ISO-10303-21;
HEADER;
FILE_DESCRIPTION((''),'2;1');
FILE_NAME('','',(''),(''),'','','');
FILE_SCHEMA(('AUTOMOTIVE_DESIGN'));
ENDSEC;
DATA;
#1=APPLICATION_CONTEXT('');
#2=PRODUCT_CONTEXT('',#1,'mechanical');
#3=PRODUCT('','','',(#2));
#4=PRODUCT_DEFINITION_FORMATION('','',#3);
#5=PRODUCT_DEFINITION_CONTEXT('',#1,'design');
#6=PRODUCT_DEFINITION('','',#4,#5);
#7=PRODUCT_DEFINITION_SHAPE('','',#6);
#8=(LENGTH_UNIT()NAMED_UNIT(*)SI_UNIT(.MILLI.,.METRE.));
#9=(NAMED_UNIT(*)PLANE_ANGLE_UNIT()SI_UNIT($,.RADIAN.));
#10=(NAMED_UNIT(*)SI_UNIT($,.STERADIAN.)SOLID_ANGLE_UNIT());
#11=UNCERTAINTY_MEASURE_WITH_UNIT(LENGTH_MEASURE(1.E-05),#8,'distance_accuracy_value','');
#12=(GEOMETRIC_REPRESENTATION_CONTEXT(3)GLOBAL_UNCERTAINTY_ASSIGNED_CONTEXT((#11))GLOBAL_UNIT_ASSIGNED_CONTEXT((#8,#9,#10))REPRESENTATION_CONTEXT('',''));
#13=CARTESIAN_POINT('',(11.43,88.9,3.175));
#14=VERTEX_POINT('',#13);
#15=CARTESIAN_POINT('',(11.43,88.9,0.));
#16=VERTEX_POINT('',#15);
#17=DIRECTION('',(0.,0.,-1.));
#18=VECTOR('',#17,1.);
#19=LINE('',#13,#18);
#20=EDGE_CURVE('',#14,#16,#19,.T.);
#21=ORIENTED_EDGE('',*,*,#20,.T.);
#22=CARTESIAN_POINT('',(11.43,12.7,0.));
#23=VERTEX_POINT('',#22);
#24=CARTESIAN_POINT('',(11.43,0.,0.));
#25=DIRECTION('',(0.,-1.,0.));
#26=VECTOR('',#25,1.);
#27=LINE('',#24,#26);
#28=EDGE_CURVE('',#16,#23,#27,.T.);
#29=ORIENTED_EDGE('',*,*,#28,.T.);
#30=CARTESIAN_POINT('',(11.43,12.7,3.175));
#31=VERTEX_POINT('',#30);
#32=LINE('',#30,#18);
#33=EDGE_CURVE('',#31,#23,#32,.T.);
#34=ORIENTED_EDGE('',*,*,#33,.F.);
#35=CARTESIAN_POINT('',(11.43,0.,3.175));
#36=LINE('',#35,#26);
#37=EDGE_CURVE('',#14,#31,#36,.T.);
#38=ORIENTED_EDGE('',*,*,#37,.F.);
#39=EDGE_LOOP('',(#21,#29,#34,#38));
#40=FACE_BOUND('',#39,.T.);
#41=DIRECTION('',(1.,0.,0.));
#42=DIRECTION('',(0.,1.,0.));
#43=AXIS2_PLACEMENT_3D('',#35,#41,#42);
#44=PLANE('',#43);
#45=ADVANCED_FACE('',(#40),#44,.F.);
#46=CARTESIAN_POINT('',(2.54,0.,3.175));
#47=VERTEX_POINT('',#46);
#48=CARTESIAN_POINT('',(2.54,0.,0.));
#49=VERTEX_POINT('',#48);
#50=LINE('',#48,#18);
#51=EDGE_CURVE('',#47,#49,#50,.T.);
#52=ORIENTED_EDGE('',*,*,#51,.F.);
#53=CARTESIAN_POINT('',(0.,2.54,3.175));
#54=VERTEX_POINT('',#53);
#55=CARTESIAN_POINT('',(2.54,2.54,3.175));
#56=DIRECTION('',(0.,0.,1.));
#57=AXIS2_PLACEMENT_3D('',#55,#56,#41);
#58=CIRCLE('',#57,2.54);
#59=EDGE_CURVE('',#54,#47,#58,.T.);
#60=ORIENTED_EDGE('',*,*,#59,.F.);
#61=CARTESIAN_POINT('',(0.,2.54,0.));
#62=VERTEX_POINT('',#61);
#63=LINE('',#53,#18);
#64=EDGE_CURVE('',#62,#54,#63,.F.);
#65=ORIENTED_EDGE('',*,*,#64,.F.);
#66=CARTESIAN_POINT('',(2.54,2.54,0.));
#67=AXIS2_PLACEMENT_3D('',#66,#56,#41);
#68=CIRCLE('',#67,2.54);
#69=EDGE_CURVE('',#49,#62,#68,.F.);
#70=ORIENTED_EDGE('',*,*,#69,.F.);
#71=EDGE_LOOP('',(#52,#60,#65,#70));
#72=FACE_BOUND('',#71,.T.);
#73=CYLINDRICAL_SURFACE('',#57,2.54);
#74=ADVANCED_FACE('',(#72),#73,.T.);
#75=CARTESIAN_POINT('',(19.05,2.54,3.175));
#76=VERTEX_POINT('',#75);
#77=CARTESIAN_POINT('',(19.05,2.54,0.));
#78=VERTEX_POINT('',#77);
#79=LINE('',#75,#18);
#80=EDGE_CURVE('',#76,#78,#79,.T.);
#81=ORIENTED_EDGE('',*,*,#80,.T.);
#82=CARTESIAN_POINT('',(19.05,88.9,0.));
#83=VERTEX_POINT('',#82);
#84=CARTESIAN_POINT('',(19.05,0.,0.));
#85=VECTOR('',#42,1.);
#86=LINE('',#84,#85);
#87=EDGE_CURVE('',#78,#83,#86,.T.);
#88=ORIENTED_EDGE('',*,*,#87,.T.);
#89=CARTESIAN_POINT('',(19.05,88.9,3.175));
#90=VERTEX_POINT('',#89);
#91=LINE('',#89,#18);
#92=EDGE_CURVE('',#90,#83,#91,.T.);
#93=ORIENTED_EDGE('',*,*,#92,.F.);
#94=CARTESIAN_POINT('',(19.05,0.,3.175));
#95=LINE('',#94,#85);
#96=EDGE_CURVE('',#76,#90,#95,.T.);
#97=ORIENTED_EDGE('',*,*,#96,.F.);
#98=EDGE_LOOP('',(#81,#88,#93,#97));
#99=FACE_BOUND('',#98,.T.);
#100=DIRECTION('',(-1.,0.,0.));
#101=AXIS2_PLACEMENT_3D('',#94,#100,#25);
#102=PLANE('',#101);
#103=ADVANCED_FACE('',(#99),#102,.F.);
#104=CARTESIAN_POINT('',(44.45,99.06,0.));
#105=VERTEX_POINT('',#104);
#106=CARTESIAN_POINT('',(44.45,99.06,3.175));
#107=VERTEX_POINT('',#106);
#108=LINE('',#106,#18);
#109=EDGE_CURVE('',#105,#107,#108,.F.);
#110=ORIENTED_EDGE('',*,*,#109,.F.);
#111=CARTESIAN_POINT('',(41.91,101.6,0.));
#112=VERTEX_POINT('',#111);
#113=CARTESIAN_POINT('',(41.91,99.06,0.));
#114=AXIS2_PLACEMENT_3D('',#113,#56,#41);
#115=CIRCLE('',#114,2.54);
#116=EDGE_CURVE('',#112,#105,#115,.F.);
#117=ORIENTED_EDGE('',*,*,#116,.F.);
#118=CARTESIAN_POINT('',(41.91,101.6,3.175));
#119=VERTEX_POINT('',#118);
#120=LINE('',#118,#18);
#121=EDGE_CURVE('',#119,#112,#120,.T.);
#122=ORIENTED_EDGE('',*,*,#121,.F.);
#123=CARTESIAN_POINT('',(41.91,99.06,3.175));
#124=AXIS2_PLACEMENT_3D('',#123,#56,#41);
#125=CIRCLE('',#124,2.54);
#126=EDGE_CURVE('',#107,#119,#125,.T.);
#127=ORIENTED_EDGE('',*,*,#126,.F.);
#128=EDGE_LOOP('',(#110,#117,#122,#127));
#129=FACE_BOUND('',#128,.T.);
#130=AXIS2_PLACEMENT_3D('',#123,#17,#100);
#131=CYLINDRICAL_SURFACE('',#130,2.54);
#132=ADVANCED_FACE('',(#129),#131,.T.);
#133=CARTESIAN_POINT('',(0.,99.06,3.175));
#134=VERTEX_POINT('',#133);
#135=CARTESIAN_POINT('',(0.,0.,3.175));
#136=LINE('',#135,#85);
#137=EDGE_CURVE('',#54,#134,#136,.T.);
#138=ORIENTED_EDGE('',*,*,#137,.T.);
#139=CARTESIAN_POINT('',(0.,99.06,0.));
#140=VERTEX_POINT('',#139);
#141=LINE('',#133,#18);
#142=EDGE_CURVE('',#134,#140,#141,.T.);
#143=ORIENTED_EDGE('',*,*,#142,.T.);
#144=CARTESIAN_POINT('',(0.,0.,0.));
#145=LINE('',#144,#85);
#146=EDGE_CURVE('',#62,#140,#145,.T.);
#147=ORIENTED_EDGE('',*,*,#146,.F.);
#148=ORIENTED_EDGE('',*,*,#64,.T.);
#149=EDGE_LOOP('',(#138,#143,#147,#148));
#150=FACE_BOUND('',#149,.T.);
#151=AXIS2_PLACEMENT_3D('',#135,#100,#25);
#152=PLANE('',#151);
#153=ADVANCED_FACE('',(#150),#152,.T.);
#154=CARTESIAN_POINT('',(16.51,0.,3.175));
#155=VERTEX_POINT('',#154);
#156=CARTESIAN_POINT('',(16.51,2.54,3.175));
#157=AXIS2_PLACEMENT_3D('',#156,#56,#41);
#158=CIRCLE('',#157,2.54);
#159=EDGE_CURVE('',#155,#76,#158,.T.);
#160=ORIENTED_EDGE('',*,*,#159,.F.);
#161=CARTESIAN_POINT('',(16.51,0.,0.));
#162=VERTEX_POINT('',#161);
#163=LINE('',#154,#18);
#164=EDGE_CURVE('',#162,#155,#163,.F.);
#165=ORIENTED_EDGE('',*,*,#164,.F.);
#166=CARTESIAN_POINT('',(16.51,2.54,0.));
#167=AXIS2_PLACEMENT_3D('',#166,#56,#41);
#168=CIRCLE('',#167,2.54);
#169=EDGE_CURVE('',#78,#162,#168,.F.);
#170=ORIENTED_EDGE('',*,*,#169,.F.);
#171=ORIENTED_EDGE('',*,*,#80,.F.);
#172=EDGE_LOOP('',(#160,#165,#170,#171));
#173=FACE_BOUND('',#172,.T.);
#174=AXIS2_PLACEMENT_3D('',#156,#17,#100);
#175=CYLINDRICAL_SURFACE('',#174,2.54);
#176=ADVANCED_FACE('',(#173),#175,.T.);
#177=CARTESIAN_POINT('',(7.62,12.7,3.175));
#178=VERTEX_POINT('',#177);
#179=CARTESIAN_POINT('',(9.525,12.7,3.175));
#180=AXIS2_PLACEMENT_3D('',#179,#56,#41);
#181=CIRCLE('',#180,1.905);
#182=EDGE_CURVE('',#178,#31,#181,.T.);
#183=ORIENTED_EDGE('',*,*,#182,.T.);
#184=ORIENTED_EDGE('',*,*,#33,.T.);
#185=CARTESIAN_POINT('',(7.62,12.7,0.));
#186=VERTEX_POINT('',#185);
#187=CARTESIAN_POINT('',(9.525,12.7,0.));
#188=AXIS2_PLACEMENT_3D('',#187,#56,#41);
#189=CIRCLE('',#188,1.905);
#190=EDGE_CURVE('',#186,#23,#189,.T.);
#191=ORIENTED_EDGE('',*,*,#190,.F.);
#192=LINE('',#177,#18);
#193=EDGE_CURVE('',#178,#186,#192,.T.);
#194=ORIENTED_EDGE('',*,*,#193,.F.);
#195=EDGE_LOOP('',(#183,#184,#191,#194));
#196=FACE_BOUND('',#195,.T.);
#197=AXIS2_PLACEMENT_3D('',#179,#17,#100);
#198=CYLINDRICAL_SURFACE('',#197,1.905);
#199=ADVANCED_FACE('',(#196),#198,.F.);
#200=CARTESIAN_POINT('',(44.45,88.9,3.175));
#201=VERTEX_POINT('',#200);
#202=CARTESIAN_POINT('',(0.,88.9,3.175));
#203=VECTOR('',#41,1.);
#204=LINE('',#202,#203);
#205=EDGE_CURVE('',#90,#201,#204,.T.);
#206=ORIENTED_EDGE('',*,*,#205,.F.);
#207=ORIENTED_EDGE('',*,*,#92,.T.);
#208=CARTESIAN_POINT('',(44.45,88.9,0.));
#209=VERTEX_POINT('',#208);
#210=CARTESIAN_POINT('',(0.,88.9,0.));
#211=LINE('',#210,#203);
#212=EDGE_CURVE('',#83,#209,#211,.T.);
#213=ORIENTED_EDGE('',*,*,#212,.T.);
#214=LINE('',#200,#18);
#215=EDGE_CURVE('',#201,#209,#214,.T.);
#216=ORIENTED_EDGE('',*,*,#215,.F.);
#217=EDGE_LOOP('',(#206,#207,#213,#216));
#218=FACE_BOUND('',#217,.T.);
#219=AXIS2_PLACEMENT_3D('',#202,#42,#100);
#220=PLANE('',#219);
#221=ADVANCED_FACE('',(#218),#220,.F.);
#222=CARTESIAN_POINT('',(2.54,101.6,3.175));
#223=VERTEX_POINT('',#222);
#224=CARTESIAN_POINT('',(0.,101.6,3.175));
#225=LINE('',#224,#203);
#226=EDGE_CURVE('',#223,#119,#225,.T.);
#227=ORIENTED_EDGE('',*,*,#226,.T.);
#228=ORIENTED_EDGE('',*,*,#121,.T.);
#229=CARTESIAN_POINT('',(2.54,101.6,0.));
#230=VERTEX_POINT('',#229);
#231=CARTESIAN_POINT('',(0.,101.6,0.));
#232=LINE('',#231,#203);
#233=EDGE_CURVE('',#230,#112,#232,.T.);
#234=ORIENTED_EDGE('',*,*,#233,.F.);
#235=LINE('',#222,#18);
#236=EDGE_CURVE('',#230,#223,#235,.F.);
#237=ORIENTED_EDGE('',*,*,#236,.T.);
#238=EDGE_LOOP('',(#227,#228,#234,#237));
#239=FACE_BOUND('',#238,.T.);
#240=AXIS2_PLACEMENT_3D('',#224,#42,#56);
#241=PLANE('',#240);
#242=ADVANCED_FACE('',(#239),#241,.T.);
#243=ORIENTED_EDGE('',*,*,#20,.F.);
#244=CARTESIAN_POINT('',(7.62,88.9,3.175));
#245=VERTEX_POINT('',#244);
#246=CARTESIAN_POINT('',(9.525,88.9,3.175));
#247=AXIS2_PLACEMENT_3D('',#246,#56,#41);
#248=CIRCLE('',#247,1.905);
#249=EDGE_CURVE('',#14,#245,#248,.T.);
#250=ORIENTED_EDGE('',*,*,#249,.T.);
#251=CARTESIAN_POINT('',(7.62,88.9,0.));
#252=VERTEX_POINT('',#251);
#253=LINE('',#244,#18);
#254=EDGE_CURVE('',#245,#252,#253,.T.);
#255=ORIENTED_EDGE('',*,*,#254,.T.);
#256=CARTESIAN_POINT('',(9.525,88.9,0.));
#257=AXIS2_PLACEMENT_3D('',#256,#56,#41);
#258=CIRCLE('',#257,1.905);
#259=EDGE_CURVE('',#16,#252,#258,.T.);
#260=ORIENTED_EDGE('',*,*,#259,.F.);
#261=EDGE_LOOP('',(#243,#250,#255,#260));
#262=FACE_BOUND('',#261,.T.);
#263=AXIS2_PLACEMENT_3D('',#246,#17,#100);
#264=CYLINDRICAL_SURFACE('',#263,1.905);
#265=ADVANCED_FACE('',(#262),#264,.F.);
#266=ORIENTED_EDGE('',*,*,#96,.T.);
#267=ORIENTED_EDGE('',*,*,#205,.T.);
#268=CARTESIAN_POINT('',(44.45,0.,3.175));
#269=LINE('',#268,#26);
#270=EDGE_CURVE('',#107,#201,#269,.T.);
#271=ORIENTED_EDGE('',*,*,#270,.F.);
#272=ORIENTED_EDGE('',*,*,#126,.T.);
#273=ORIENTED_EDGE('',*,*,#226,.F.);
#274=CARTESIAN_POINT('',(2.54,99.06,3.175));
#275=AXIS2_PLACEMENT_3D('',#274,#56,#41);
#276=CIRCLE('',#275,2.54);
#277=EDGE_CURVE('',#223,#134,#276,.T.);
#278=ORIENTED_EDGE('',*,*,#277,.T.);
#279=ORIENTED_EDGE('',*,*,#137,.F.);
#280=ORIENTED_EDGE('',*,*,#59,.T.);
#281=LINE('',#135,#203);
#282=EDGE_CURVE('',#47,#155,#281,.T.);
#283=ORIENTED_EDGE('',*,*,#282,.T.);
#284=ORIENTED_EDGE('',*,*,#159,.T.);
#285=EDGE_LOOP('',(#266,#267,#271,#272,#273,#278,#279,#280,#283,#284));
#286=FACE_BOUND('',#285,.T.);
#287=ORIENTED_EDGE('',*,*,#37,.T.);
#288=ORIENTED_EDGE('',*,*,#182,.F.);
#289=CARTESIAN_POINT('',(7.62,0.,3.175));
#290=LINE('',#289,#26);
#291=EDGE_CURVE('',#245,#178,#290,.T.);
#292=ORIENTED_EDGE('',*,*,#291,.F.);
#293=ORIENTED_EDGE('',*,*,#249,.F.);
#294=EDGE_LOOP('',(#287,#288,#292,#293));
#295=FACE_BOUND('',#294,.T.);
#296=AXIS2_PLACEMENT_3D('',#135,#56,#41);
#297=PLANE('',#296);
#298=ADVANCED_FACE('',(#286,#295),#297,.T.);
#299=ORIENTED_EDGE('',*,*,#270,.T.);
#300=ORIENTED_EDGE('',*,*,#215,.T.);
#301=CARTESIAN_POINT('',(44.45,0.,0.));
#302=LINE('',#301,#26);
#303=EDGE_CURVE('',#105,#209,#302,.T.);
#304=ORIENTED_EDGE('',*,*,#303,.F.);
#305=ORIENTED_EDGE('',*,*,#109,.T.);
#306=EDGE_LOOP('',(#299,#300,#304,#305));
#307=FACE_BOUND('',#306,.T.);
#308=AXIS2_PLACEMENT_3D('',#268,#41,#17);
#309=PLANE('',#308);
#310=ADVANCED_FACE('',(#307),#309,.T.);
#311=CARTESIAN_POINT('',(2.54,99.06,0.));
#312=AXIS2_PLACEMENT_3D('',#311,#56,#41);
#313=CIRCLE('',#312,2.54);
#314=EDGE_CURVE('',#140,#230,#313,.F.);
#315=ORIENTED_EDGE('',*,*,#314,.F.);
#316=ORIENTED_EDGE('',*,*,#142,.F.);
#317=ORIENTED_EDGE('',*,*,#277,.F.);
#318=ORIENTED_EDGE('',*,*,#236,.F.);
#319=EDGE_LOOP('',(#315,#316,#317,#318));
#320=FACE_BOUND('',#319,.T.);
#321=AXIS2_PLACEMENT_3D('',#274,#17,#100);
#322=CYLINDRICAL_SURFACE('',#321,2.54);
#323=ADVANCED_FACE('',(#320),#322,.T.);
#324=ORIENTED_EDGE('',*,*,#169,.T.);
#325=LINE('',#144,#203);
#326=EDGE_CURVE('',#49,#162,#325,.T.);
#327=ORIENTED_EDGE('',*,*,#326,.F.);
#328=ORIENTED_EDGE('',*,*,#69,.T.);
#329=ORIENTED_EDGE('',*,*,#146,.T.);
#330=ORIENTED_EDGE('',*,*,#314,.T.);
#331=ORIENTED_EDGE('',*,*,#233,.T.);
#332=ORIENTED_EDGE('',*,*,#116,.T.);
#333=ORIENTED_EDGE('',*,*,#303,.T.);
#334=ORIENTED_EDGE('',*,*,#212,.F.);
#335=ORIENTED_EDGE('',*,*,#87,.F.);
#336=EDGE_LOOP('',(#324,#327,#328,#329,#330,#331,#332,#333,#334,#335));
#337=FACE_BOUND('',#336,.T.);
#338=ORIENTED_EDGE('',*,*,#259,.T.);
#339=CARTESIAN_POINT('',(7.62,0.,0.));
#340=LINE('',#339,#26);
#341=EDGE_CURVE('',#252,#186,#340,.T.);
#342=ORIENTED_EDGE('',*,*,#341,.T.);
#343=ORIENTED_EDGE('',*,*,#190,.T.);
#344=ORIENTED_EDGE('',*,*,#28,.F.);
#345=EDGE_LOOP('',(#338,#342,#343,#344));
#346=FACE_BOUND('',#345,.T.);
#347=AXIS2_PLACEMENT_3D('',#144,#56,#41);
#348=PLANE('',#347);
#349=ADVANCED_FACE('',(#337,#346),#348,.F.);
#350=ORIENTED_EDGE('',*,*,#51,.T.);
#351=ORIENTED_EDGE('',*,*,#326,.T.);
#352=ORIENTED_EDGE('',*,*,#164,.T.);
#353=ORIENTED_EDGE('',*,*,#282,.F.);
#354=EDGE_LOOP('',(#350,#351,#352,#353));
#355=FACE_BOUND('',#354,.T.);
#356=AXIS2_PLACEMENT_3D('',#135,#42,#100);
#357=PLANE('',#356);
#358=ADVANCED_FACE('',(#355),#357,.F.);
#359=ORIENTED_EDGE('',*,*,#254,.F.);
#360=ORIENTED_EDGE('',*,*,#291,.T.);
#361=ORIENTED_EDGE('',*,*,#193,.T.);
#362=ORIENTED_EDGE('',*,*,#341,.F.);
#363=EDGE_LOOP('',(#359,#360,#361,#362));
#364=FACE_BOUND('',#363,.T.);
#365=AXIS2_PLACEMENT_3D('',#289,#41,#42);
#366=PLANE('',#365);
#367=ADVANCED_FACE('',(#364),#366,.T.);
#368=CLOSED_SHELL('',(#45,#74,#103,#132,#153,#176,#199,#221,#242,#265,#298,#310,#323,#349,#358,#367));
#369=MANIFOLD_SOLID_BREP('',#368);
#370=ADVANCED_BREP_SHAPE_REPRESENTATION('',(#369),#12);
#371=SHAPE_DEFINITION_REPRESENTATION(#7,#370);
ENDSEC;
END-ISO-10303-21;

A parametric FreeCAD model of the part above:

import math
import FreeCAD as App
import Part
import Sketcher
Q = App.Units.Quantity


def edges_at(feature, points):
    """Names of the edges that pass closest to the given points."""
    edges = feature.Shape.Edges
    near = lambda p: min(range(len(edges)), key=lambda i: edges[i].distToShape(Part.Vertex(*p))[0])
    return sorted({f"Edge{near(p) + 1}" for p in points})

doc = App.newDocument("Part")
body = doc.addObject("PartDesign::Body", "Body")

# Sketch on XY plane
sketch1 = body.newObject("Sketcher::SketchObject", "Sketch")
sketch1.AttachmentSupport = (doc.getObject("XY_Plane"), [""])
sketch1.MapMode = "FlatFace"
sketch1.addGeometry([
    Part.LineSegment(App.Vector(0, 101.6, 0), App.Vector(0, 0, 0)),  # 0
    Part.LineSegment(App.Vector(0, 0, 0), App.Vector(19.1, 0, 0)),  # 1
    Part.LineSegment(App.Vector(19.1, 0, 0), App.Vector(19.1, 88.9, 0)),  # 2
    Part.LineSegment(App.Vector(19.1, 88.9, 0), App.Vector(44.5, 88.9, 0)),  # 3
    Part.LineSegment(App.Vector(44.5, 88.9, 0), App.Vector(44.5, 101.6, 0)),  # 4
    Part.LineSegment(App.Vector(44.5, 101.6, 0), App.Vector(0, 101.6, 0)),  # 5
    Part.LineSegment(App.Vector(7.6, 12.7, 0), App.Vector(7.6, 88.9, 0)),  # 6
    Part.ArcOfCircle(Part.Circle(App.Vector(9.5, 88.9, 0), App.Vector(0, 0, 1), 1.9), math.radians(0), math.radians(180)),  # 7
    Part.LineSegment(App.Vector(11.4, 88.9, 0), App.Vector(11.4, 12.7, 0)),  # 8
    Part.ArcOfCircle(Part.Circle(App.Vector(9.5, 12.7, 0), App.Vector(0, 0, 1), 1.9), math.radians(180), math.radians(360)),  # 9
], False)
sketch1.addConstraint([
    Sketcher.Constraint("Coincident", 0, 2, 1, 1),
    Sketcher.Constraint("Coincident", 1, 2, 2, 1),
    Sketcher.Constraint("Coincident", 2, 2, 3, 1),
    Sketcher.Constraint("Coincident", 3, 2, 4, 1),
    Sketcher.Constraint("Coincident", 4, 2, 5, 1),
    Sketcher.Constraint("Coincident", 5, 2, 0, 1),
    Sketcher.Constraint("Tangent", 6, 2, 7, 2),
    Sketcher.Constraint("Tangent", 7, 1, 8, 1),
    Sketcher.Constraint("Tangent", 8, 2, 9, 2),
    Sketcher.Constraint("Tangent", 9, 1, 6, 1),
    Sketcher.Constraint("Vertical", 0),
    Sketcher.Constraint("Horizontal", 1),
    Sketcher.Constraint("Vertical", 2),
    Sketcher.Constraint("Horizontal", 3),
    Sketcher.Constraint("Vertical", 4),
    Sketcher.Constraint("Horizontal", 5),
    Sketcher.Constraint("Vertical", 6),
    Sketcher.Constraint("Vertical", 8),
    Sketcher.Constraint("Coincident", 0, 2, -1, 1),
    Sketcher.Constraint("Horizontal", 7, 3, 2, 2),
    Sketcher.Constraint("DistanceX", 3, 1, 3, 2, Q("1 in")),
    Sketcher.Constraint("DistanceY", 0, 2, 0, 1, Q("4 in")),
    Sketcher.Constraint("DistanceY", 6, 1, 6, 2, Q("3 in")),
    Sketcher.Constraint("DistanceY", 2, 1, 2, 2, Q("3.5 in")),
    Sketcher.Constraint("Radius", 7, Q("0.075 in")),
    Sketcher.Constraint("DistanceX", 1, 1, 1, 2, Q("0.75 in")),
    Sketcher.Constraint("DistanceX", -1, 1, 6, 2, Q("0.3 in")),
])
pad1 = body.newObject("PartDesign::Pad", "Pad")
pad1.Profile = sketch1
pad1.Length = Q("0.125 in")
doc.recompute()

fillet = body.newObject("PartDesign::Fillet", "Fillet")
fillet.Base = (pad1, edges_at(pad1, [
    (19.05, 0, 1.587),
    (0, 0, 1.587),
    (44.45, 101.6, 1.587),
    (0, 101.6, 1.587),
]))
fillet.Radius = Q("0.1 in")

doc.recompute()
